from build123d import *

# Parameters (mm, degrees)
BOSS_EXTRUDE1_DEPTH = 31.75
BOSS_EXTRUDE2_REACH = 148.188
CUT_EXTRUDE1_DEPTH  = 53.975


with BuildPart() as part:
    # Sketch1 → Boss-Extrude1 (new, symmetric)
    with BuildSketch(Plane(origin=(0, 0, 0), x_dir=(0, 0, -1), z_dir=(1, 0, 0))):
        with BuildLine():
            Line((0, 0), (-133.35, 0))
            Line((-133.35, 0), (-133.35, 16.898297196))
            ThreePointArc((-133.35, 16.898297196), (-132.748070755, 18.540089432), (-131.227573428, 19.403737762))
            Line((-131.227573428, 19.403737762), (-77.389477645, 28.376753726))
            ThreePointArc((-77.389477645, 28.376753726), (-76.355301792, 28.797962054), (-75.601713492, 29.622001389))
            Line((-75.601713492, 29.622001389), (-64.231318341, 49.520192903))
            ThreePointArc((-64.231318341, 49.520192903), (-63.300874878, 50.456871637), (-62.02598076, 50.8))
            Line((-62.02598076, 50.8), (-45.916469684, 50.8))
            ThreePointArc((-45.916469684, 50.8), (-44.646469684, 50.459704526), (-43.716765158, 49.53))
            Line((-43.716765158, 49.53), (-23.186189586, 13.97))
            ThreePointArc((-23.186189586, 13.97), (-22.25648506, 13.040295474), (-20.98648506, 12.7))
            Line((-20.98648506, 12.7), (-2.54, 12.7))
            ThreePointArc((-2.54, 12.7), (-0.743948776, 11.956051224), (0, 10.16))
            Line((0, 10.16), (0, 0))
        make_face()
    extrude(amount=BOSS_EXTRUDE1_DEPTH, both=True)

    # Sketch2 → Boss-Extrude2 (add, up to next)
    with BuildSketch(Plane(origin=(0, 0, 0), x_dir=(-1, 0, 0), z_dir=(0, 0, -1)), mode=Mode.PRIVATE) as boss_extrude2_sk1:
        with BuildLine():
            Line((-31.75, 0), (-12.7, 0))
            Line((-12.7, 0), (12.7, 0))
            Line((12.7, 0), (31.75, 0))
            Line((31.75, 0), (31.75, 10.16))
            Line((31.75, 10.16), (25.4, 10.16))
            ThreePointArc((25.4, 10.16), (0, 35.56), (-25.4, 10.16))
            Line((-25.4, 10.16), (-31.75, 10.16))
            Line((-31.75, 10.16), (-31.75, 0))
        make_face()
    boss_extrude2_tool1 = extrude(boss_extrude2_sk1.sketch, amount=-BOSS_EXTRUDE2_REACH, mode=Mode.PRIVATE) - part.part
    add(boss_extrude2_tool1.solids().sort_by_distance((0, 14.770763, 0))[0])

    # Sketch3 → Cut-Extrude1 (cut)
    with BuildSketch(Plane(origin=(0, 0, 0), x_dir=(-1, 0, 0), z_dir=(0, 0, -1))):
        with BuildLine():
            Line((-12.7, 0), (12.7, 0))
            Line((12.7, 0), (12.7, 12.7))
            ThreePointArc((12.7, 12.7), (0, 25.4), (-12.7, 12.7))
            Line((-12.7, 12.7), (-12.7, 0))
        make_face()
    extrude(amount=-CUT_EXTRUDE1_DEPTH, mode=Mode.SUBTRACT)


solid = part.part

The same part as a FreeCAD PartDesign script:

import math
import FreeCAD as App
import Part
import Sketcher
Q = App.Units.Quantity

doc = App.newDocument("Part")
body = doc.addObject("PartDesign::Body", "Body")

sketch1 = body.newObject("Sketcher::SketchObject", "Sketch")
sketch1.AttachmentSupport = (doc.getObject("YZ_Plane"), [""])
sketch1.MapMode = "FlatFace"
sketch1.addGeometry([
    Part.LineSegment(App.Vector(0, 133.35, 0), App.Vector(0, 0, 0)),
    Part.LineSegment(App.Vector(0, 0, 0), App.Vector(10.16, 0, 0)),
    Part.ArcOfCircle(Part.Circle(App.Vector(10.16, 2.54, 0), App.Vector(0, 0, 1), 2.54), math.radians(-90), math.radians(0)),
    Part.LineSegment(App.Vector(12.7, 2.54, 0), App.Vector(12.7, 20.986485, 0)),
    Part.ArcOfCircle(Part.Circle(App.Vector(15.24, 20.986485, 0), App.Vector(0, 0, 1), 2.54), math.radians(120), math.radians(180)),
    Part.LineSegment(App.Vector(13.97, 23.18619, 0), App.Vector(49.53, 43.716765, 0)),
    Part.ArcOfCircle(Part.Circle(App.Vector(48.26, 45.91647, 0), App.Vector(0, 0, 1), 2.54), math.radians(-60), math.radians(0)),
    Part.LineSegment(App.Vector(50.8, 45.91647, 0), App.Vector(50.8, 62.025981, 0)),
    Part.ArcOfCircle(Part.Circle(App.Vector(48.26, 62.025981, 0), App.Vector(0, 0, 1), 2.54), math.radians(0), math.radians(60.255119)),
    Part.LineSegment(App.Vector(49.520193, 64.231318, 0), App.Vector(29.622001, 75.601713, 0)),
    Part.ArcOfCircle(Part.Circle(App.Vector(30.882194, 77.807051, 0), App.Vector(0, 0, 1), 2.54), math.radians(-170.537678), math.radians(-119.744881)),
    Part.LineSegment(App.Vector(28.376754, 77.389478, 0), App.Vector(19.403738, 131.227573, 0)),
    Part.ArcOfCircle(Part.Circle(App.Vector(16.898297, 130.81, 0), App.Vector(0, 0, 1), 2.54), math.radians(9.462322), math.radians(90)),
    Part.LineSegment(App.Vector(16.898297, 133.35, 0), App.Vector(0, 133.35, 0)),
], False)
sketch1.addConstraint([
    Sketcher.Constraint("Coincident", 0, 2, 1, 1),
    Sketcher.Constraint("Tangent", 1, 2, 2, 1),
    Sketcher.Constraint("Tangent", 2, 2, 3, 1),
    Sketcher.Constraint("Tangent", 3, 2, 4, 2),
    Sketcher.Constraint("Tangent", 4, 1, 5, 1),
    Sketcher.Constraint("Tangent", 5, 2, 6, 1),
    Sketcher.Constraint("Tangent", 6, 2, 7, 1),
    Sketcher.Constraint("Tangent", 7, 2, 8, 1),
    Sketcher.Constraint("Tangent", 8, 2, 9, 1),
    Sketcher.Constraint("Tangent", 9, 2, 10, 2),
    Sketcher.Constraint("Tangent", 10, 1, 11, 1),
    Sketcher.Constraint("Tangent", 11, 2, 12, 1),
    Sketcher.Constraint("Tangent", 12, 2, 13, 1),
    Sketcher.Constraint("Coincident", 13, 2, 0, 1),
    Sketcher.Constraint("Vertical", 0),
    Sketcher.Constraint("Horizontal", 1),
    Sketcher.Constraint("Vertical", 3),
    Sketcher.Constraint("Vertical", 7),
    Sketcher.Constraint("Horizontal", 13),
    Sketcher.Constraint("Coincident", 0, 2, -1, 1),
    Sketcher.Constraint("Equal", 2, 4),
    Sketcher.Constraint("Equal", 4, 6),
    Sketcher.Constraint("Equal", 6, 8),
    Sketcher.Constraint("Equal", 8, 10),
    Sketcher.Constraint("Equal", 10, 12),
    Sketcher.Constraint("Radius", 2, Q("0.1 in")),
    Sketcher.Constraint("DistanceX", 1, 1, 1, 2, Q("0.4 in")),
    Sketcher.Constraint("DistanceX", -1, 1, 6, 2, Q("2 in")),
    Sketcher.Constraint("Angle", 5, Q("30 deg")),
    Sketcher.Constraint("DistanceY", 0, 2, 0, 1, Q("5.25 in")),
    Sketcher.Constraint("DistanceY", 7, 1, 7, 2, Q("16.109511 mm")),
    Sketcher.Constraint("DistanceX", -1, 1, 9, 2, Q("29.622001 mm")),
    Sketcher.Constraint("DistanceX", 13, 2, 13, 1, Q("16.898297 mm")),
    Sketcher.Constraint("DistanceY", 3, 1, 3, 2, Q("18.446485 mm")),
    Sketcher.Constraint("DistanceY", -1, 1, 10, 3, Q("77.807051 mm")),
])
pad1 = body.newObject("PartDesign::Pad", "Pad")
pad1.Profile = sketch1
pad1.Length = Q("2.5 in")
pad1.Midplane = True

sketch2 = body.newObject("Sketcher::SketchObject", "Sketch001")
sketch2.AttachmentSupport = (doc.getObject("XY_Plane"), [""])
sketch2.MapMode = "FlatFace"
sketch2.addGeometry([
    Part.LineSegment(App.Vector(31.75, 0, 0), App.Vector(-31.75, 0, 0)),
    Part.LineSegment(App.Vector(-31.75, 0, 0), App.Vector(-31.75, 10.16, 0)),
    Part.LineSegment(App.Vector(-31.75, 10.16, 0), App.Vector(-25.4, 10.16, 0)),
    Part.ArcOfCircle(Part.Circle(App.Vector(0, 10.16, 0), App.Vector(0, 0, 1), 25.4), math.radians(0), math.radians(180)),
    Part.LineSegment(App.Vector(25.4, 10.16, 0), App.Vector(31.75, 10.16, 0)),
    Part.LineSegment(App.Vector(31.75, 10.16, 0), App.Vector(31.75, 0, 0)),
], False)
sketch2.addConstraint([
    Sketcher.Constraint("Coincident", 0, 2, 1, 1),
    Sketcher.Constraint("Coincident", 1, 2, 2, 1),
    Sketcher.Constraint("Coincident", 2, 2, 3, 2),
    Sketcher.Constraint("Coincident", 3, 1, 4, 1),
    Sketcher.Constraint("Coincident", 4, 2, 5, 1),
    Sketcher.Constraint("Coincident", 5, 2, 0, 1),
    Sketcher.Constraint("Horizontal", 0),
    Sketcher.Constraint("Vertical", 1),
    Sketcher.Constraint("Horizontal", 2),
    Sketcher.Constraint("Horizontal", 4),
    Sketcher.Constraint("Vertical", 5),
    Sketcher.Constraint("Symmetric", 0, 2, 5, 2, -1, 1),
    Sketcher.Constraint("Symmetric", 2, 2, 3, 1, -2),
    Sketcher.Constraint("Horizontal", 3, 3, 1, 2),
    Sketcher.Constraint("Radius", 3, Q("1 in")),
    Sketcher.Constraint("DistanceX", 0, 2, 0, 1, Q("2.5 in")),
    Sketcher.Constraint("DistanceY", 1, 1, 1, 2, Q("0.4 in")),
])
pad2 = body.newObject("PartDesign::Pad", "Pad001")
pad2.Profile = sketch2
pad2.Type = "UpToFirst"

sketch3 = body.newObject("Sketcher::SketchObject", "Sketch002")
sketch3.AttachmentSupport = (doc.getObject("XY_Plane"), [""])
sketch3.MapMode = "FlatFace"
sketch3.addGeometry([
    Part.LineSegment(App.Vector(12.7, 0, 0), App.Vector(-12.7, 0, 0)),
    Part.LineSegment(App.Vector(-12.7, 0, 0), App.Vector(-12.7, 12.7, 0)),
    Part.ArcOfCircle(Part.Circle(App.Vector(0, 12.7, 0), App.Vector(0, 0, 1), 12.7), math.radians(0), math.radians(180)),
    Part.LineSegment(App.Vector(12.7, 12.7, 0), App.Vector(12.7, 0, 0)),
], False)
sketch3.addConstraint([
    Sketcher.Constraint("Coincident", 0, 2, 1, 1),
    Sketcher.Constraint("Tangent", 1, 2, 2, 2),
    Sketcher.Constraint("Tangent", 2, 1, 3, 1),
    Sketcher.Constraint("Coincident", 3, 2, 0, 1),
    Sketcher.Constraint("Horizontal", 0),
    Sketcher.Constraint("Vertical", 1),
    Sketcher.Constraint("Vertical", 3),
    Sketcher.Constraint("Symmetric", 0, 2, 3, 2, -1, 1),
    Sketcher.Constraint("Radius", 2, Q("0.5 in")),
    Sketcher.Constraint("DistanceY", 1, 1, 1, 2, Q("0.5 in")),
])
pocket1 = body.newObject("PartDesign::Pocket", "Pocket")
pocket1.Profile = sketch3
pocket1.Length = Q("2.125 in")
pocket1.Reversed = True

doc.recompute()
